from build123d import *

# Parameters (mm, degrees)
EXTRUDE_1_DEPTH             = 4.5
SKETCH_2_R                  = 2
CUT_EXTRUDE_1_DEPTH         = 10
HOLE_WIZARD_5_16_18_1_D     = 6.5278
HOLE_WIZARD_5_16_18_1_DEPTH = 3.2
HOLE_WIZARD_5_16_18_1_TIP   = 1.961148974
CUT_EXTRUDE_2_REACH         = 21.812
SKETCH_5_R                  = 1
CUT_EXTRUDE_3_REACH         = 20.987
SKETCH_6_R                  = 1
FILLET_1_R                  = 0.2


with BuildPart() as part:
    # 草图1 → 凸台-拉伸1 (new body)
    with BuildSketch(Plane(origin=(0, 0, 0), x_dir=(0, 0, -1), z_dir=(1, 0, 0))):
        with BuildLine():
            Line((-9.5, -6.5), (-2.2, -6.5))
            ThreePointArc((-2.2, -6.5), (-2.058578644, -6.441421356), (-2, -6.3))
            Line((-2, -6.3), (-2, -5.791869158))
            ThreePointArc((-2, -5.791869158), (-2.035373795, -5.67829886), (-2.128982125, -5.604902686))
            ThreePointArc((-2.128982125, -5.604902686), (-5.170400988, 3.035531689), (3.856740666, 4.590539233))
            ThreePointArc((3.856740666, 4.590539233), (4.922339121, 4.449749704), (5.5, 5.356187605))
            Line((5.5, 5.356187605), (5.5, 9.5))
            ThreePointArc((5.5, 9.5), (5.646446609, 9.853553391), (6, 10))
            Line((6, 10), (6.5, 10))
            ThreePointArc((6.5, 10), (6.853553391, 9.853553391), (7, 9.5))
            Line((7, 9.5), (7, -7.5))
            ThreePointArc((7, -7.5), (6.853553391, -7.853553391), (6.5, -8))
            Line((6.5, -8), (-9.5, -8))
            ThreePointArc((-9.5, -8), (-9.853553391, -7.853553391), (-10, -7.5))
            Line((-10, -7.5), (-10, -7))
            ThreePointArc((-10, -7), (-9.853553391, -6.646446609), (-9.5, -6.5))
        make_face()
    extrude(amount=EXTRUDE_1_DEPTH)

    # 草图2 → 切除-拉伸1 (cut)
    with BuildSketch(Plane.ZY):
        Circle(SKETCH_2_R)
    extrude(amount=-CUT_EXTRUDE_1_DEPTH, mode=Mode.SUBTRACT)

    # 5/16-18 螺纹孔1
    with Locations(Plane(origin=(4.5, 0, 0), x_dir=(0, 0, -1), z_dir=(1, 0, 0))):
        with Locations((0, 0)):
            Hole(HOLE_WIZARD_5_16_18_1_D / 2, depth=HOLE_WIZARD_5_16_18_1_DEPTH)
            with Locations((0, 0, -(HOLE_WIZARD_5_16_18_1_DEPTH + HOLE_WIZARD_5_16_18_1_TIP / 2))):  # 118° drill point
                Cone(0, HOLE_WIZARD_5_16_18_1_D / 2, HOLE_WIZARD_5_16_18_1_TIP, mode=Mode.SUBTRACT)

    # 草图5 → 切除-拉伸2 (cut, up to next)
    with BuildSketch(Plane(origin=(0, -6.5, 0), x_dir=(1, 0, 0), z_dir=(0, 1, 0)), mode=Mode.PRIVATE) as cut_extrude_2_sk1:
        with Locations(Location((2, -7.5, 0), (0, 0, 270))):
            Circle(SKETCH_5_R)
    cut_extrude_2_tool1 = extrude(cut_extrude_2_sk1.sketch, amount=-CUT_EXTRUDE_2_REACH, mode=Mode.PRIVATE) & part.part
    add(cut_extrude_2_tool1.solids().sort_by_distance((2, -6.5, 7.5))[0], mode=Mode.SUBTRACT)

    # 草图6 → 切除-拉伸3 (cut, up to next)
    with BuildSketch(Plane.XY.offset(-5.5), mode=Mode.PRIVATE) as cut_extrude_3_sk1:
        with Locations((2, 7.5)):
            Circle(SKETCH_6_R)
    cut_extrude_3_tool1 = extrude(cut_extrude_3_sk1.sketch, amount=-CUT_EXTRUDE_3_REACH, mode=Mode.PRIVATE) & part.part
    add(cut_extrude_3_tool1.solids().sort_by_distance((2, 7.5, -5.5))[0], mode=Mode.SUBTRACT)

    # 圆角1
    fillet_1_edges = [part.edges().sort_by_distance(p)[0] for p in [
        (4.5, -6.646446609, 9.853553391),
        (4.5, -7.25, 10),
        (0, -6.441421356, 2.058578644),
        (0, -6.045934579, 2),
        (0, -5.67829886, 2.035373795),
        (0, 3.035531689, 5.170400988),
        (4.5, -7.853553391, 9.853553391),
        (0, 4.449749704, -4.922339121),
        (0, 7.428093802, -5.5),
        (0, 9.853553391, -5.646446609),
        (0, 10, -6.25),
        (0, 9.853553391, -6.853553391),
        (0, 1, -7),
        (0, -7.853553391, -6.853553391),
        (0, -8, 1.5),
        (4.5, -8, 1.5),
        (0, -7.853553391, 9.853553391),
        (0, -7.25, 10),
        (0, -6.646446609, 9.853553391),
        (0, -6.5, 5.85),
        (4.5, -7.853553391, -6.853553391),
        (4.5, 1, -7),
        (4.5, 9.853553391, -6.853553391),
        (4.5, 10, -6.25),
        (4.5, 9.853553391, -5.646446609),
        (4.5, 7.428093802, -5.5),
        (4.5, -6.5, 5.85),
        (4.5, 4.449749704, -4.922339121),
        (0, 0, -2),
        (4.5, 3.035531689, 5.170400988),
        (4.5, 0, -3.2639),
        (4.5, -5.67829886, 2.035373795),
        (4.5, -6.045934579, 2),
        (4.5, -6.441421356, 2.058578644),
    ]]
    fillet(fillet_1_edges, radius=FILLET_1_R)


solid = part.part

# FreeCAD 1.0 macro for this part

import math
import FreeCAD as App
import Part
import Sketcher
from FreeCAD import Vector


def edges_at(feature, points):
    """Names of the edges that pass closest to the given points."""
    edges = feature.Shape.Edges
    near = lambda p: min(range(len(edges)), key=lambda i: edges[i].distToShape(Part.Vertex(*p))[0])
    return sorted({f"Edge{near(p) + 1}" for p in points})

doc = App.newDocument("Part")
body = doc.addObject("PartDesign::Body", "Body")

# Sketch on YZ plane
sketch1 = doc.addObject("Sketcher::SketchObject", "Sketch")
body.addObject(sketch1)
sketch1.AttachmentSupport = (doc.YZ_Plane, [""])
sketch1.MapMode = "FlatFace"
sketch1.addGeometry([
    Part.LineSegment(Vector(-6.5, 2.2, 0), Vector(-6.5, 9.5, 0)),  # 0
    Part.ArcOfCircle(Part.Circle(Vector(-7, 9.5, 0), Vector(0, 0, 1), 0.5), math.radians(0), math.radians(90)),  # 1
    Part.LineSegment(Vector(-7, 10, 0), Vector(-7.5, 10, 0)),  # 2
    Part.ArcOfCircle(Part.Circle(Vector(-7.5, 9.5, 0), Vector(0, 0, 1), 0.5), math.radians(90), math.radians(180)),  # 3
    Part.LineSegment(Vector(-8, 9.5, 0), Vector(-8, -6.5, 0)),  # 4
    Part.ArcOfCircle(Part.Circle(Vector(-7.5, -6.5, 0), Vector(0, 0, 1), 0.5), math.radians(180), math.radians(270)),  # 5
    Part.LineSegment(Vector(-7.5, -7, 0), Vector(9.5, -7, 0)),  # 6
    Part.ArcOfCircle(Part.Circle(Vector(9.5, -6.5, 0), Vector(0, 0, 1), 0.5), math.radians(-90), math.radians(0)),  # 7
    Part.LineSegment(Vector(10, -6.5, 0), Vector(10, -6, 0)),  # 8
    Part.ArcOfCircle(Part.Circle(Vector(9.5, -6, 0), Vector(0, 0, 1), 0.5), math.radians(0), math.radians(90)),  # 9
    Part.LineSegment(Vector(9.5, -5.5, 0), Vector(5.356188, -5.5, 0)),  # 10
    Part.ArcOfCircle(Part.Circle(Vector(5.356188, -4.5, 0), Vector(0, 0, 1), 1), math.radians(139.964709), math.radians(270)),  # 11
    Part.ArcOfCircle(Part.Circle(Vector(0, 0, 0), Vector(0, 0, 1), 5.995623), math.radians(-40.035291), math.radians(159.201078)),  # 12
    Part.ArcOfCircle(Part.Circle(Vector(-5.791869, 2.2, 0), Vector(0, 0, 1), 0.2), math.radians(-90), math.radians(-20.798922)),  # 13
    Part.LineSegment(Vector(-5.791869, 2, 0), Vector(-6.3, 2, 0)),  # 14
    Part.ArcOfCircle(Part.Circle(Vector(-6.3, 2.2, 0), Vector(0, 0, 1), 0.2), math.radians(-180), math.radians(-90)),  # 15
], False)
sketch1.addConstraint([
    Sketcher.Constraint("Tangent", 0, 2, 1, 1),
    Sketcher.Constraint("Tangent", 1, 2, 2, 1),
    Sketcher.Constraint("Tangent", 2, 2, 3, 1),
    Sketcher.Constraint("Tangent", 3, 2, 4, 1),
    Sketcher.Constraint("Tangent", 4, 2, 5, 1),
    Sketcher.Constraint("Tangent", 5, 2, 6, 1),
    Sketcher.Constraint("Tangent", 6, 2, 7, 1),
    Sketcher.Constraint("Tangent", 7, 2, 8, 1),
    Sketcher.Constraint("Tangent", 8, 2, 9, 1),
    Sketcher.Constraint("Tangent", 9, 2, 10, 1),
    Sketcher.Constraint("Tangent", 10, 2, 11, 2),
    Sketcher.Constraint("Tangent", 11, 1, 12, 1),
    Sketcher.Constraint("Tangent", 12, 2, 13, 2),
    Sketcher.Constraint("Tangent", 13, 1, 14, 1),
    Sketcher.Constraint("Tangent", 14, 2, 15, 2),
    Sketcher.Constraint("Tangent", 15, 1, 0, 1),
    Sketcher.Constraint("Vertical", 0),
    Sketcher.Constraint("Horizontal", 2),
    Sketcher.Constraint("Vertical", 4),
    Sketcher.Constraint("Horizontal", 6),
    Sketcher.Constraint("Vertical", 8),
    Sketcher.Constraint("Horizontal", 10),
    Sketcher.Constraint("Horizontal", 14),
    Sketcher.Constraint("Coincident", 12, 3, -1, 1),
    Sketcher.Constraint("Equal", 1, 3),
    Sketcher.Constraint("Equal", 3, 5),
    Sketcher.Constraint("Equal", 5, 7),
    Sketcher.Constraint("Equal", 7, 9),
    Sketcher.Constraint("Equal", 13, 15),
    Sketcher.Constraint("Equal", 2, 8),
    Sketcher.Constraint("Radius", 11, 1.0),
    Sketcher.Constraint("Radius", 1, 0.5),
    Sketcher.Constraint("Radius", 13, 0.2),
    Sketcher.Constraint("DistanceX", 6, 1, 6, 2, 17.0),
    Sketcher.Constraint("DistanceY", 4, 2, 4, 1, 16.0),
    Sketcher.Constraint("DistanceX", 2, 2, 2, 1, 0.5),
    Sketcher.Constraint("DistanceY", 0, 1, 0, 2, 7.3),
    Sketcher.Constraint("DistanceX", 1, 3, -1, 1, 7.0),
    Sketcher.Constraint("DistanceY", 9, 3, -1, 1, 6.0),
    Sketcher.Constraint("Radius", 12, 5.995623),
])
pad1 = doc.addObject("PartDesign::Pad", "Pad")
body.addObject(pad1)
pad1.Profile = sketch1
pad1.Length = 4.5

# Sketch on YZ plane
sketch2 = doc.addObject("Sketcher::SketchObject", "Sketch001")
body.addObject(sketch2)
sketch2.AttachmentSupport = (doc.YZ_Plane, [""])
sketch2.MapMode = "FlatFace"
sketch2.addGeometry(Part.Circle(Vector(0, 0, 0), Vector(0, 0, 1), 2), False)
sketch2.addConstraint([
    Sketcher.Constraint("Coincident", 0, 3, -1, 1),
    Sketcher.Constraint("Diameter", 0, 4.0),
])
pocket1 = doc.addObject("PartDesign::Pocket", "Pocket")
body.addObject(pocket1)
pocket1.Profile = sketch2
pocket1.Length = 10
pocket1.Reversed = True

# Sketch on YZ plane
sketch3 = doc.addObject("Sketcher::SketchObject", "Sketch002")
body.addObject(sketch3)
sketch3.AttachmentSupport = (doc.YZ_Plane, [""])
sketch3.MapMode = "FlatFace"
sketch3.AttachmentOffset = App.Placement(Vector(0, 0, 4.5), App.Rotation())
sketch3.addGeometry(Part.Circle(Vector(0, 0, 0), Vector(0, 0, 1), 3.2639), False)
sketch3.addConstraint([
    Sketcher.Constraint("Coincident", 0, 3, -1, 1),
    Sketcher.Constraint("Diameter", 0, 6.5278),
])
doc.recompute()
hole = doc.addObject("PartDesign::Hole", "Hole")
body.addObject(hole)
hole.Profile = sketch3
hole.ThreadType = "None"
hole.Diameter = 6.5278
hole.DepthType = "Dimension"
hole.Depth = 3.2
hole.DrillPoint = "Angled"
hole.DrillPointAngle = 118

# Sketch on XZ plane
sketch4 = doc.addObject("Sketcher::SketchObject", "Sketch003")
body.addObject(sketch4)
sketch4.AttachmentSupport = (doc.XZ_Plane, [""])
sketch4.MapMode = "FlatFace"
sketch4.AttachmentOffset = App.Placement(Vector(0, 0, 6.5), App.Rotation())
sketch4.addGeometry(Part.Circle(Vector(2, 7.5, 0), Vector(0, 0, 1), 1), False)
sketch4.addConstraint([
    Sketcher.Constraint("Diameter", 0, 2.0),
    Sketcher.Constraint("DistanceX", -1, 1, 0, 3, 2.0),
    Sketcher.Constraint("DistanceY", -1, 1, 0, 3, 7.5),
])
pocket2 = doc.addObject("PartDesign::Pocket", "Pocket001")
body.addObject(pocket2)
pocket2.Profile = sketch4
pocket2.Type = "UpToFirst"
pocket2.Reversed = True

# Sketch on XY plane
sketch5 = doc.addObject("Sketcher::SketchObject", "Sketch004")
body.addObject(sketch5)
sketch5.AttachmentSupport = (doc.XY_Plane, [""])
sketch5.MapMode = "FlatFace"
sketch5.AttachmentOffset = App.Placement(Vector(0, 0, -5.5), App.Rotation())
sketch5.addGeometry(Part.Circle(Vector(2, 7.5, 0), Vector(0, 0, 1), 1), False)
sketch5.addConstraint([
    Sketcher.Constraint("Diameter", 0, 2.0),
    Sketcher.Constraint("DistanceX", -1, 1, 0, 3, 2.0),
    Sketcher.Constraint("DistanceY", -1, 1, 0, 3, 7.5),
])
pocket3 = doc.addObject("PartDesign::Pocket", "Pocket002")
body.addObject(pocket3)
pocket3.Profile = sketch5
pocket3.Type = "UpToFirst"
doc.recompute()

fillet = doc.addObject("PartDesign::Fillet", "Fillet")
body.addObject(fillet)
fillet.Base = (pocket3, edges_at(pocket3, [
    (4.5, -6.646, 9.854),
    (4.5, -7.25, 10),
    (0, -6.441, 2.059),
    (0, -6.046, 2),
    (0, -5.678, 2.035),
    (0, 3.036, 5.17),
    (4.5, -7.854, 9.854),
    (0, 4.45, -4.922),
    (0, 7.428, -5.5),
    (0, 9.854, -5.646),
    (0, 10, -6.25),
    (0, 9.854, -6.854),
    (0, 1, -7),
    (0, -7.854, -6.854),
    (0, -8, 1.5),
    (4.5, -8, 1.5),
    (0, -7.854, 9.854),
    (0, -7.25, 10),
    (0, -6.646, 9.854),
    (0, -6.5, 5.85),
    (4.5, -7.854, -6.854),
    (4.5, 1, -7),
    (4.5, 9.854, -6.854),
    (4.5, 10, -6.25),
    (4.5, 9.854, -5.646),
    (4.5, 7.428, -5.5),
    (4.5, -6.5, 5.85),
    (4.5, 4.45, -4.922),
    (0, 0, -2),
    (4.5, 3.036, 5.17),
    (4.5, 0, -3.264),
    (4.5, -5.678, 2.035),
    (4.5, -6.046, 2),
    (4.5, -6.441, 2.059),
]))
fillet.Radius = 0.2

doc.recompute()
